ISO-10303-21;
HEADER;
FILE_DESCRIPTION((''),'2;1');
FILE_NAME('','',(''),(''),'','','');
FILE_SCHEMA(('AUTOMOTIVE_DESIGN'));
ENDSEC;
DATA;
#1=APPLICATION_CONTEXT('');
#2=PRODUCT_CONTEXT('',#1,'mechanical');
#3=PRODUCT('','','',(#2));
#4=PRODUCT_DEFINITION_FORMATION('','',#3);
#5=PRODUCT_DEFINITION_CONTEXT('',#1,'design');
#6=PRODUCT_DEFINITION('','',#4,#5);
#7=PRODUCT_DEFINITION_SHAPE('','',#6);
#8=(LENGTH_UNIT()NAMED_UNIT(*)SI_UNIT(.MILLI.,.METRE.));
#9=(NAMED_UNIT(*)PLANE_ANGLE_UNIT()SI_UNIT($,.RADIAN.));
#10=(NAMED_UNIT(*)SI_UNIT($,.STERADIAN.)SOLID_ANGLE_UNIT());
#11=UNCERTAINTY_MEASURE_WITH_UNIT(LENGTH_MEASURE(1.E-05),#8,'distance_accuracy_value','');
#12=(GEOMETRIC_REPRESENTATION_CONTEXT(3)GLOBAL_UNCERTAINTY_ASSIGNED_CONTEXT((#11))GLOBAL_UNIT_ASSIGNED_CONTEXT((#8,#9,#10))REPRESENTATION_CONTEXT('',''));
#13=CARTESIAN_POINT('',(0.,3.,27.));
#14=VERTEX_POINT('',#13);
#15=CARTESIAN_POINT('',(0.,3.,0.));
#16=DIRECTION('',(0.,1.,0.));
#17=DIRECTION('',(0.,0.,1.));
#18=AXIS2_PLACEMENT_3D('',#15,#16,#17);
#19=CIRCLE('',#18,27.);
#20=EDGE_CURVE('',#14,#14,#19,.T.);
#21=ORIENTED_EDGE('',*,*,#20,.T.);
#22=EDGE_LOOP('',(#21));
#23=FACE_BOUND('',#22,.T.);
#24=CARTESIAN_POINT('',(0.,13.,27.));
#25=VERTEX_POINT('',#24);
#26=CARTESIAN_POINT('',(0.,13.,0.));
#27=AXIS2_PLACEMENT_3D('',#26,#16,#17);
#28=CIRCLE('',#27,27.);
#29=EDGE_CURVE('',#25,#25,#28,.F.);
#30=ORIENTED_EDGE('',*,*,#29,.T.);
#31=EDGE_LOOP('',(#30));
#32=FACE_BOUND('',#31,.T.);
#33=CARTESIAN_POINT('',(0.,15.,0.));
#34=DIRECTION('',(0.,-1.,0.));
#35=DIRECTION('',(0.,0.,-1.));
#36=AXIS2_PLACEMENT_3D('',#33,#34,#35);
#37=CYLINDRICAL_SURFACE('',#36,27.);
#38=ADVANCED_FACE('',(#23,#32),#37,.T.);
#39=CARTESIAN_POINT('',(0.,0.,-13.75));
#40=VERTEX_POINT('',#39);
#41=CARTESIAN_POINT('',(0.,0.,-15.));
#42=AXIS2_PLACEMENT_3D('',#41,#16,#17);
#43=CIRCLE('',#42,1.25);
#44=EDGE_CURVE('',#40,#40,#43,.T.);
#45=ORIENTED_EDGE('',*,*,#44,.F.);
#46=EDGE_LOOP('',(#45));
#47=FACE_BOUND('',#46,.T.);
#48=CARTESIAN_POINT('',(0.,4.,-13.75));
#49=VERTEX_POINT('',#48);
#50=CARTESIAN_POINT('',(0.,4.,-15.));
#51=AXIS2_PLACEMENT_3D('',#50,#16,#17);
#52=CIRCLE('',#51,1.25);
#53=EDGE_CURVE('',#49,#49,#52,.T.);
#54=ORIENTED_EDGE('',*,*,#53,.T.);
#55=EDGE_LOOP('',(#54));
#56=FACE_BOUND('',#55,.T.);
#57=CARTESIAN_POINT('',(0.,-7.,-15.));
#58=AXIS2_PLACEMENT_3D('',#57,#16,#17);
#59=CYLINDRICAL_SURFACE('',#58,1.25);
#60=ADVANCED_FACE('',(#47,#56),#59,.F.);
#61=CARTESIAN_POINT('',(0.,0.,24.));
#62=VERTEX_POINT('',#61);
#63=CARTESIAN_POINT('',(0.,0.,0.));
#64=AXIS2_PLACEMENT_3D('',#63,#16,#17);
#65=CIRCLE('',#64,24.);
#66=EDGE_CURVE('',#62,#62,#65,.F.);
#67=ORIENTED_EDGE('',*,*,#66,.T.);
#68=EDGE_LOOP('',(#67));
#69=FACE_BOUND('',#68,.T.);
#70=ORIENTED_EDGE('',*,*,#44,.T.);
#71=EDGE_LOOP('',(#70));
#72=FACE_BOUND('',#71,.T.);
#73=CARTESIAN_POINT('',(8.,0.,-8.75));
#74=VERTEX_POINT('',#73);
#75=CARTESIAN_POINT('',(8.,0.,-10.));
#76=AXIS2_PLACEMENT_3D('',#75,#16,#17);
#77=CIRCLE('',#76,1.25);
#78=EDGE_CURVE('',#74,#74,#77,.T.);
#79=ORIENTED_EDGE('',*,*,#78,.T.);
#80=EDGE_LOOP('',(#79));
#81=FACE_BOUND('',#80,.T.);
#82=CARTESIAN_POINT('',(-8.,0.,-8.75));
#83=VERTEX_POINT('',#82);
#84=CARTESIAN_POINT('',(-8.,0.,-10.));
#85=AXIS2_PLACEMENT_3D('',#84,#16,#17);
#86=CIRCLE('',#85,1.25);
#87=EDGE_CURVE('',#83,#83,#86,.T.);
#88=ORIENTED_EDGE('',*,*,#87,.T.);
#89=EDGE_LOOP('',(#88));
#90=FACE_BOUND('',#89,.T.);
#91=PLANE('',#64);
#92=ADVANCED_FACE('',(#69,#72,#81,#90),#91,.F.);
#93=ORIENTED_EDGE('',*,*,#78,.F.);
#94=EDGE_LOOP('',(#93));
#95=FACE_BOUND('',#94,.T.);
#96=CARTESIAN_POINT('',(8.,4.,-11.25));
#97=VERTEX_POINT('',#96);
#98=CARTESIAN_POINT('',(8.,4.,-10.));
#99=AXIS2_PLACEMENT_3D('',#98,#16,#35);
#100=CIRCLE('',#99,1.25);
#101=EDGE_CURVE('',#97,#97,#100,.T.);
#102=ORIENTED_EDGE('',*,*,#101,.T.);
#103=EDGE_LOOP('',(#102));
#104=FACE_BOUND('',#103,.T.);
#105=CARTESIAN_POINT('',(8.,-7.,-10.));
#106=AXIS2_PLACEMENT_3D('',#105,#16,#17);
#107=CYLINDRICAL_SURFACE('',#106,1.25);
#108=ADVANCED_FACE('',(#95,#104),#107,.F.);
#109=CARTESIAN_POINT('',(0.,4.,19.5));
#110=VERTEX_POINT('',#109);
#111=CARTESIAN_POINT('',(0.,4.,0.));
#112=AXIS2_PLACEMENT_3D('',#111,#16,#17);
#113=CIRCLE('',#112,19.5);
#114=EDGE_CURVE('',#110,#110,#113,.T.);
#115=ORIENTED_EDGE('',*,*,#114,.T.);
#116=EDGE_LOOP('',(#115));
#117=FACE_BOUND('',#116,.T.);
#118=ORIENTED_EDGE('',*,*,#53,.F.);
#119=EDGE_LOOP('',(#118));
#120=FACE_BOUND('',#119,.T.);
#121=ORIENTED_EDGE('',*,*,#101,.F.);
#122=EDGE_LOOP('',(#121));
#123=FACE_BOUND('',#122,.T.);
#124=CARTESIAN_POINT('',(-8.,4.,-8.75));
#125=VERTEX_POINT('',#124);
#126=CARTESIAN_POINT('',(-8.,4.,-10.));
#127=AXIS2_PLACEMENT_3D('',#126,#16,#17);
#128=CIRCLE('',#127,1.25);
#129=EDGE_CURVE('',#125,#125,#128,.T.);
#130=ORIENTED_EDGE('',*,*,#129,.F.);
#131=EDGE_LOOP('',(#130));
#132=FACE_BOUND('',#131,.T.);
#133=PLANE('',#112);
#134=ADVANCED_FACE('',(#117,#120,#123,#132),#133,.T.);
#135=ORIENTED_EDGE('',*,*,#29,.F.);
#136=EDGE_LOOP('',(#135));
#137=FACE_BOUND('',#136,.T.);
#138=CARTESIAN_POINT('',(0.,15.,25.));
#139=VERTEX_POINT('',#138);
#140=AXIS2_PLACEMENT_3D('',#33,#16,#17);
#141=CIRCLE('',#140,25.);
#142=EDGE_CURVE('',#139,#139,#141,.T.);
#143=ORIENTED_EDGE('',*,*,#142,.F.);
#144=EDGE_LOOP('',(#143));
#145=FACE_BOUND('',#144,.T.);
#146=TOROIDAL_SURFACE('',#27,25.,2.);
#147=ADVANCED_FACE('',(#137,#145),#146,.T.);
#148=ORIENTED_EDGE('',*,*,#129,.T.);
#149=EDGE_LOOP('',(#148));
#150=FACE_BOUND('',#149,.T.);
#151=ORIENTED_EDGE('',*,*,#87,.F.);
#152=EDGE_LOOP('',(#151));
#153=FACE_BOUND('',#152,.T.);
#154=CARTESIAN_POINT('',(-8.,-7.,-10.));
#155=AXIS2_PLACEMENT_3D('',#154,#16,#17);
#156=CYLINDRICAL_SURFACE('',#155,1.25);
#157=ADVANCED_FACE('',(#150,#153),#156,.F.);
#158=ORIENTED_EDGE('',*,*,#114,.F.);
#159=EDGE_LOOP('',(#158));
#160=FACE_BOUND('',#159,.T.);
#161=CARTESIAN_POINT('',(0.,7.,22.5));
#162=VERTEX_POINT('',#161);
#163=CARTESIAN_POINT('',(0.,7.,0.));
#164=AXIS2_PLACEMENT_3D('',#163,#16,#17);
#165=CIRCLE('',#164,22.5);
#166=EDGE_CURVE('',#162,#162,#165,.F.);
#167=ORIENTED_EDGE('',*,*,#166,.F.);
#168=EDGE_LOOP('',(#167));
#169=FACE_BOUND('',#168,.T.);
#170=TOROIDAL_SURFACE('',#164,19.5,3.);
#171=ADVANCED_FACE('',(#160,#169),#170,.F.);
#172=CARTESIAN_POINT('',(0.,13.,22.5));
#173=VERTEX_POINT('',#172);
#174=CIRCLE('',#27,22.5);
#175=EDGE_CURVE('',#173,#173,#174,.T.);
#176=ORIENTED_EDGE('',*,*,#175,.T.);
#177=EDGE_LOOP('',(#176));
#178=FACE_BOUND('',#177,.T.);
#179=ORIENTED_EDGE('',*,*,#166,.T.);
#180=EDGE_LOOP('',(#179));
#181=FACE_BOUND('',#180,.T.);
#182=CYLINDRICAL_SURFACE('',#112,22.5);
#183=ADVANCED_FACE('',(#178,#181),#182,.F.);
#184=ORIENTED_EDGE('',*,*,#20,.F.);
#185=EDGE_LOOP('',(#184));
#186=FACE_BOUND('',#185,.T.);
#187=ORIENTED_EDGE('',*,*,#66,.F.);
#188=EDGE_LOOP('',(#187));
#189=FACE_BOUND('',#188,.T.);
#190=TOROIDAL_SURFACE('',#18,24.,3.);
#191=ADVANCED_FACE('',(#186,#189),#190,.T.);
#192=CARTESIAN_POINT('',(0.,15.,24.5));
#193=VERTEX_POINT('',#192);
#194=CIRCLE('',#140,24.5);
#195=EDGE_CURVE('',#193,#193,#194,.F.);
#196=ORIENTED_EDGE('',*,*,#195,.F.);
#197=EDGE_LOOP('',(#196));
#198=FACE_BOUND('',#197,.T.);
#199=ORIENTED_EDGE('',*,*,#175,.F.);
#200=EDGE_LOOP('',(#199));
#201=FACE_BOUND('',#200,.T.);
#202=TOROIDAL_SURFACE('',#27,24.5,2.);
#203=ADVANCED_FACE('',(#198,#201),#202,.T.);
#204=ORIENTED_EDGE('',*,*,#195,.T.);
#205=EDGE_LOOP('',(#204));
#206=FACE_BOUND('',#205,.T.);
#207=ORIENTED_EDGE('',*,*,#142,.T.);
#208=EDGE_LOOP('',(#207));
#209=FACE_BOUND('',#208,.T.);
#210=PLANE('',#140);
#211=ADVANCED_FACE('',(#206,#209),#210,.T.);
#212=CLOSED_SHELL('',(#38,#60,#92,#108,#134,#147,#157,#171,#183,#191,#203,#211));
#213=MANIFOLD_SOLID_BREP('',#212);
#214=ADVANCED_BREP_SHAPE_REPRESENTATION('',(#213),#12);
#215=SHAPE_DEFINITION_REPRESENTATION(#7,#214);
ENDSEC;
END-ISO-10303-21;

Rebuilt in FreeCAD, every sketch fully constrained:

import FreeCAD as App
import Part
import Sketcher
from FreeCAD import Vector
Q = App.Units.Quantity


def edges_at(feature, points):
    """Names of the edges that pass closest to the given points."""
    edges = feature.Shape.Edges
    near = lambda p: min(range(len(edges)), key=lambda i: edges[i].distToShape(Part.Vertex(*p))[0])
    return sorted({f"Edge{near(p) + 1}" for p in points})

doc = App.newDocument("Part")
body = doc.addObject("PartDesign::Body", "Body")

sketch1 = body.newObject("Sketcher::SketchObject", "Sketch")
sketch1.AttachmentSupport = (doc.getObject("XZ_Plane"), [""])
sketch1.MapMode = "FlatFace"
sketch1.addGeometry(Part.Circle(Vector(0, 0, 0), Vector(0, 0, 1), 27), False)
sketch1.addConstraint([
    Sketcher.Constraint("Coincident", 0, 3, -1, 1),
    Sketcher.Constraint("Diameter", 0, Q("54 mm")),
])
pad1 = body.newObject("PartDesign::Pad", "Pad")
pad1.Profile = sketch1
pad1.Length = 15
pad1.Reversed = True

sketch2 = body.newObject("Sketcher::SketchObject", "Sketch001")
sketch2.AttachmentSupport = (doc.getObject("XZ_Plane"), [""])
sketch2.MapMode = "FlatFace"
sketch2.AttachmentOffset = App.Placement(Vector(0, 0, -15), App.Rotation())
sketch2.addGeometry(Part.Circle(Vector(0, 0, 0), Vector(0, 0, 1), 22), False)
sketch2.addConstraint([
    Sketcher.Constraint("Coincident", 0, 3, -1, 1),
    Sketcher.Constraint("Diameter", 0, Q("45 mm")),
])
pocket1 = body.newObject("PartDesign::Pocket", "Pocket")
pocket1.Profile = sketch2
pocket1.Length = 11
pocket1.Reversed = True
doc.recompute()

fillet = body.newObject("PartDesign::Fillet", "Fillet")
fillet.Base = (pocket1, edges_at(pocket1, [(0, 0, -27)]))
fillet.Radius = 3
doc.recompute()

fillet2 = body.newObject("PartDesign::Fillet", "Fillet001")
fillet2.Base = (fillet, edges_at(fillet, [(0, 4, -22.5)]))
fillet2.Radius = 3
doc.recompute()

fillet3 = body.newObject("PartDesign::Fillet", "Fillet002")
fillet3.Base = (fillet2, edges_at(fillet2, [(0, 15, -27)]))
fillet3.Radius = 2
doc.recompute()

fillet4 = body.newObject("PartDesign::Fillet", "Fillet003")
fillet4.Base = (fillet3, edges_at(fillet3, [(0, 15, -22.5)]))
fillet4.Radius = 2

sketch3 = body.newObject("Sketcher::SketchObject", "Sketch002")
sketch3.AttachmentSupport = (doc.getObject("XZ_Plane"), [""])
sketch3.MapMode = "FlatFace"
sketch3.AttachmentOffset = App.Placement(Vector(0, 0, -4), App.Rotation())
sketch3.addGeometry([
    Part.Circle(Vector(-8, -10, 0), Vector(0, 0, 1), 1.2),
    Part.Circle(Vector(8, -10, 0), Vector(0, 0, 1), 1.2),
    Part.Circle(Vector(0, -15, 0), Vector(0, 0, 1), 1.2),
], False)
sketch3.addConstraint([
    Sketcher.Constraint("Equal", 0, 1),
    Sketcher.Constraint("Equal", 1, 2),
    Sketcher.Constraint("Symmetric", 0, 3, 1, 3, -2),
    Sketcher.Constraint("PointOnObject", 2, 3, -2),
    Sketcher.Constraint("Diameter", 0, Q("2.5 mm")),
    Sketcher.Constraint("DistanceX", 0, 3, -1, 1, Q("8 mm")),
    Sketcher.Constraint("DistanceY", 0, 3, -1, 1, Q("10 mm")),
    Sketcher.Constraint("DistanceY", 2, 3, -1, 1, Q("15 mm")),
])
pocket2 = body.newObject("PartDesign::Pocket", "Pocket001")
pocket2.Profile = sketch3
pocket2.Length = 11
pocket2.Reversed = True

doc.recompute()
